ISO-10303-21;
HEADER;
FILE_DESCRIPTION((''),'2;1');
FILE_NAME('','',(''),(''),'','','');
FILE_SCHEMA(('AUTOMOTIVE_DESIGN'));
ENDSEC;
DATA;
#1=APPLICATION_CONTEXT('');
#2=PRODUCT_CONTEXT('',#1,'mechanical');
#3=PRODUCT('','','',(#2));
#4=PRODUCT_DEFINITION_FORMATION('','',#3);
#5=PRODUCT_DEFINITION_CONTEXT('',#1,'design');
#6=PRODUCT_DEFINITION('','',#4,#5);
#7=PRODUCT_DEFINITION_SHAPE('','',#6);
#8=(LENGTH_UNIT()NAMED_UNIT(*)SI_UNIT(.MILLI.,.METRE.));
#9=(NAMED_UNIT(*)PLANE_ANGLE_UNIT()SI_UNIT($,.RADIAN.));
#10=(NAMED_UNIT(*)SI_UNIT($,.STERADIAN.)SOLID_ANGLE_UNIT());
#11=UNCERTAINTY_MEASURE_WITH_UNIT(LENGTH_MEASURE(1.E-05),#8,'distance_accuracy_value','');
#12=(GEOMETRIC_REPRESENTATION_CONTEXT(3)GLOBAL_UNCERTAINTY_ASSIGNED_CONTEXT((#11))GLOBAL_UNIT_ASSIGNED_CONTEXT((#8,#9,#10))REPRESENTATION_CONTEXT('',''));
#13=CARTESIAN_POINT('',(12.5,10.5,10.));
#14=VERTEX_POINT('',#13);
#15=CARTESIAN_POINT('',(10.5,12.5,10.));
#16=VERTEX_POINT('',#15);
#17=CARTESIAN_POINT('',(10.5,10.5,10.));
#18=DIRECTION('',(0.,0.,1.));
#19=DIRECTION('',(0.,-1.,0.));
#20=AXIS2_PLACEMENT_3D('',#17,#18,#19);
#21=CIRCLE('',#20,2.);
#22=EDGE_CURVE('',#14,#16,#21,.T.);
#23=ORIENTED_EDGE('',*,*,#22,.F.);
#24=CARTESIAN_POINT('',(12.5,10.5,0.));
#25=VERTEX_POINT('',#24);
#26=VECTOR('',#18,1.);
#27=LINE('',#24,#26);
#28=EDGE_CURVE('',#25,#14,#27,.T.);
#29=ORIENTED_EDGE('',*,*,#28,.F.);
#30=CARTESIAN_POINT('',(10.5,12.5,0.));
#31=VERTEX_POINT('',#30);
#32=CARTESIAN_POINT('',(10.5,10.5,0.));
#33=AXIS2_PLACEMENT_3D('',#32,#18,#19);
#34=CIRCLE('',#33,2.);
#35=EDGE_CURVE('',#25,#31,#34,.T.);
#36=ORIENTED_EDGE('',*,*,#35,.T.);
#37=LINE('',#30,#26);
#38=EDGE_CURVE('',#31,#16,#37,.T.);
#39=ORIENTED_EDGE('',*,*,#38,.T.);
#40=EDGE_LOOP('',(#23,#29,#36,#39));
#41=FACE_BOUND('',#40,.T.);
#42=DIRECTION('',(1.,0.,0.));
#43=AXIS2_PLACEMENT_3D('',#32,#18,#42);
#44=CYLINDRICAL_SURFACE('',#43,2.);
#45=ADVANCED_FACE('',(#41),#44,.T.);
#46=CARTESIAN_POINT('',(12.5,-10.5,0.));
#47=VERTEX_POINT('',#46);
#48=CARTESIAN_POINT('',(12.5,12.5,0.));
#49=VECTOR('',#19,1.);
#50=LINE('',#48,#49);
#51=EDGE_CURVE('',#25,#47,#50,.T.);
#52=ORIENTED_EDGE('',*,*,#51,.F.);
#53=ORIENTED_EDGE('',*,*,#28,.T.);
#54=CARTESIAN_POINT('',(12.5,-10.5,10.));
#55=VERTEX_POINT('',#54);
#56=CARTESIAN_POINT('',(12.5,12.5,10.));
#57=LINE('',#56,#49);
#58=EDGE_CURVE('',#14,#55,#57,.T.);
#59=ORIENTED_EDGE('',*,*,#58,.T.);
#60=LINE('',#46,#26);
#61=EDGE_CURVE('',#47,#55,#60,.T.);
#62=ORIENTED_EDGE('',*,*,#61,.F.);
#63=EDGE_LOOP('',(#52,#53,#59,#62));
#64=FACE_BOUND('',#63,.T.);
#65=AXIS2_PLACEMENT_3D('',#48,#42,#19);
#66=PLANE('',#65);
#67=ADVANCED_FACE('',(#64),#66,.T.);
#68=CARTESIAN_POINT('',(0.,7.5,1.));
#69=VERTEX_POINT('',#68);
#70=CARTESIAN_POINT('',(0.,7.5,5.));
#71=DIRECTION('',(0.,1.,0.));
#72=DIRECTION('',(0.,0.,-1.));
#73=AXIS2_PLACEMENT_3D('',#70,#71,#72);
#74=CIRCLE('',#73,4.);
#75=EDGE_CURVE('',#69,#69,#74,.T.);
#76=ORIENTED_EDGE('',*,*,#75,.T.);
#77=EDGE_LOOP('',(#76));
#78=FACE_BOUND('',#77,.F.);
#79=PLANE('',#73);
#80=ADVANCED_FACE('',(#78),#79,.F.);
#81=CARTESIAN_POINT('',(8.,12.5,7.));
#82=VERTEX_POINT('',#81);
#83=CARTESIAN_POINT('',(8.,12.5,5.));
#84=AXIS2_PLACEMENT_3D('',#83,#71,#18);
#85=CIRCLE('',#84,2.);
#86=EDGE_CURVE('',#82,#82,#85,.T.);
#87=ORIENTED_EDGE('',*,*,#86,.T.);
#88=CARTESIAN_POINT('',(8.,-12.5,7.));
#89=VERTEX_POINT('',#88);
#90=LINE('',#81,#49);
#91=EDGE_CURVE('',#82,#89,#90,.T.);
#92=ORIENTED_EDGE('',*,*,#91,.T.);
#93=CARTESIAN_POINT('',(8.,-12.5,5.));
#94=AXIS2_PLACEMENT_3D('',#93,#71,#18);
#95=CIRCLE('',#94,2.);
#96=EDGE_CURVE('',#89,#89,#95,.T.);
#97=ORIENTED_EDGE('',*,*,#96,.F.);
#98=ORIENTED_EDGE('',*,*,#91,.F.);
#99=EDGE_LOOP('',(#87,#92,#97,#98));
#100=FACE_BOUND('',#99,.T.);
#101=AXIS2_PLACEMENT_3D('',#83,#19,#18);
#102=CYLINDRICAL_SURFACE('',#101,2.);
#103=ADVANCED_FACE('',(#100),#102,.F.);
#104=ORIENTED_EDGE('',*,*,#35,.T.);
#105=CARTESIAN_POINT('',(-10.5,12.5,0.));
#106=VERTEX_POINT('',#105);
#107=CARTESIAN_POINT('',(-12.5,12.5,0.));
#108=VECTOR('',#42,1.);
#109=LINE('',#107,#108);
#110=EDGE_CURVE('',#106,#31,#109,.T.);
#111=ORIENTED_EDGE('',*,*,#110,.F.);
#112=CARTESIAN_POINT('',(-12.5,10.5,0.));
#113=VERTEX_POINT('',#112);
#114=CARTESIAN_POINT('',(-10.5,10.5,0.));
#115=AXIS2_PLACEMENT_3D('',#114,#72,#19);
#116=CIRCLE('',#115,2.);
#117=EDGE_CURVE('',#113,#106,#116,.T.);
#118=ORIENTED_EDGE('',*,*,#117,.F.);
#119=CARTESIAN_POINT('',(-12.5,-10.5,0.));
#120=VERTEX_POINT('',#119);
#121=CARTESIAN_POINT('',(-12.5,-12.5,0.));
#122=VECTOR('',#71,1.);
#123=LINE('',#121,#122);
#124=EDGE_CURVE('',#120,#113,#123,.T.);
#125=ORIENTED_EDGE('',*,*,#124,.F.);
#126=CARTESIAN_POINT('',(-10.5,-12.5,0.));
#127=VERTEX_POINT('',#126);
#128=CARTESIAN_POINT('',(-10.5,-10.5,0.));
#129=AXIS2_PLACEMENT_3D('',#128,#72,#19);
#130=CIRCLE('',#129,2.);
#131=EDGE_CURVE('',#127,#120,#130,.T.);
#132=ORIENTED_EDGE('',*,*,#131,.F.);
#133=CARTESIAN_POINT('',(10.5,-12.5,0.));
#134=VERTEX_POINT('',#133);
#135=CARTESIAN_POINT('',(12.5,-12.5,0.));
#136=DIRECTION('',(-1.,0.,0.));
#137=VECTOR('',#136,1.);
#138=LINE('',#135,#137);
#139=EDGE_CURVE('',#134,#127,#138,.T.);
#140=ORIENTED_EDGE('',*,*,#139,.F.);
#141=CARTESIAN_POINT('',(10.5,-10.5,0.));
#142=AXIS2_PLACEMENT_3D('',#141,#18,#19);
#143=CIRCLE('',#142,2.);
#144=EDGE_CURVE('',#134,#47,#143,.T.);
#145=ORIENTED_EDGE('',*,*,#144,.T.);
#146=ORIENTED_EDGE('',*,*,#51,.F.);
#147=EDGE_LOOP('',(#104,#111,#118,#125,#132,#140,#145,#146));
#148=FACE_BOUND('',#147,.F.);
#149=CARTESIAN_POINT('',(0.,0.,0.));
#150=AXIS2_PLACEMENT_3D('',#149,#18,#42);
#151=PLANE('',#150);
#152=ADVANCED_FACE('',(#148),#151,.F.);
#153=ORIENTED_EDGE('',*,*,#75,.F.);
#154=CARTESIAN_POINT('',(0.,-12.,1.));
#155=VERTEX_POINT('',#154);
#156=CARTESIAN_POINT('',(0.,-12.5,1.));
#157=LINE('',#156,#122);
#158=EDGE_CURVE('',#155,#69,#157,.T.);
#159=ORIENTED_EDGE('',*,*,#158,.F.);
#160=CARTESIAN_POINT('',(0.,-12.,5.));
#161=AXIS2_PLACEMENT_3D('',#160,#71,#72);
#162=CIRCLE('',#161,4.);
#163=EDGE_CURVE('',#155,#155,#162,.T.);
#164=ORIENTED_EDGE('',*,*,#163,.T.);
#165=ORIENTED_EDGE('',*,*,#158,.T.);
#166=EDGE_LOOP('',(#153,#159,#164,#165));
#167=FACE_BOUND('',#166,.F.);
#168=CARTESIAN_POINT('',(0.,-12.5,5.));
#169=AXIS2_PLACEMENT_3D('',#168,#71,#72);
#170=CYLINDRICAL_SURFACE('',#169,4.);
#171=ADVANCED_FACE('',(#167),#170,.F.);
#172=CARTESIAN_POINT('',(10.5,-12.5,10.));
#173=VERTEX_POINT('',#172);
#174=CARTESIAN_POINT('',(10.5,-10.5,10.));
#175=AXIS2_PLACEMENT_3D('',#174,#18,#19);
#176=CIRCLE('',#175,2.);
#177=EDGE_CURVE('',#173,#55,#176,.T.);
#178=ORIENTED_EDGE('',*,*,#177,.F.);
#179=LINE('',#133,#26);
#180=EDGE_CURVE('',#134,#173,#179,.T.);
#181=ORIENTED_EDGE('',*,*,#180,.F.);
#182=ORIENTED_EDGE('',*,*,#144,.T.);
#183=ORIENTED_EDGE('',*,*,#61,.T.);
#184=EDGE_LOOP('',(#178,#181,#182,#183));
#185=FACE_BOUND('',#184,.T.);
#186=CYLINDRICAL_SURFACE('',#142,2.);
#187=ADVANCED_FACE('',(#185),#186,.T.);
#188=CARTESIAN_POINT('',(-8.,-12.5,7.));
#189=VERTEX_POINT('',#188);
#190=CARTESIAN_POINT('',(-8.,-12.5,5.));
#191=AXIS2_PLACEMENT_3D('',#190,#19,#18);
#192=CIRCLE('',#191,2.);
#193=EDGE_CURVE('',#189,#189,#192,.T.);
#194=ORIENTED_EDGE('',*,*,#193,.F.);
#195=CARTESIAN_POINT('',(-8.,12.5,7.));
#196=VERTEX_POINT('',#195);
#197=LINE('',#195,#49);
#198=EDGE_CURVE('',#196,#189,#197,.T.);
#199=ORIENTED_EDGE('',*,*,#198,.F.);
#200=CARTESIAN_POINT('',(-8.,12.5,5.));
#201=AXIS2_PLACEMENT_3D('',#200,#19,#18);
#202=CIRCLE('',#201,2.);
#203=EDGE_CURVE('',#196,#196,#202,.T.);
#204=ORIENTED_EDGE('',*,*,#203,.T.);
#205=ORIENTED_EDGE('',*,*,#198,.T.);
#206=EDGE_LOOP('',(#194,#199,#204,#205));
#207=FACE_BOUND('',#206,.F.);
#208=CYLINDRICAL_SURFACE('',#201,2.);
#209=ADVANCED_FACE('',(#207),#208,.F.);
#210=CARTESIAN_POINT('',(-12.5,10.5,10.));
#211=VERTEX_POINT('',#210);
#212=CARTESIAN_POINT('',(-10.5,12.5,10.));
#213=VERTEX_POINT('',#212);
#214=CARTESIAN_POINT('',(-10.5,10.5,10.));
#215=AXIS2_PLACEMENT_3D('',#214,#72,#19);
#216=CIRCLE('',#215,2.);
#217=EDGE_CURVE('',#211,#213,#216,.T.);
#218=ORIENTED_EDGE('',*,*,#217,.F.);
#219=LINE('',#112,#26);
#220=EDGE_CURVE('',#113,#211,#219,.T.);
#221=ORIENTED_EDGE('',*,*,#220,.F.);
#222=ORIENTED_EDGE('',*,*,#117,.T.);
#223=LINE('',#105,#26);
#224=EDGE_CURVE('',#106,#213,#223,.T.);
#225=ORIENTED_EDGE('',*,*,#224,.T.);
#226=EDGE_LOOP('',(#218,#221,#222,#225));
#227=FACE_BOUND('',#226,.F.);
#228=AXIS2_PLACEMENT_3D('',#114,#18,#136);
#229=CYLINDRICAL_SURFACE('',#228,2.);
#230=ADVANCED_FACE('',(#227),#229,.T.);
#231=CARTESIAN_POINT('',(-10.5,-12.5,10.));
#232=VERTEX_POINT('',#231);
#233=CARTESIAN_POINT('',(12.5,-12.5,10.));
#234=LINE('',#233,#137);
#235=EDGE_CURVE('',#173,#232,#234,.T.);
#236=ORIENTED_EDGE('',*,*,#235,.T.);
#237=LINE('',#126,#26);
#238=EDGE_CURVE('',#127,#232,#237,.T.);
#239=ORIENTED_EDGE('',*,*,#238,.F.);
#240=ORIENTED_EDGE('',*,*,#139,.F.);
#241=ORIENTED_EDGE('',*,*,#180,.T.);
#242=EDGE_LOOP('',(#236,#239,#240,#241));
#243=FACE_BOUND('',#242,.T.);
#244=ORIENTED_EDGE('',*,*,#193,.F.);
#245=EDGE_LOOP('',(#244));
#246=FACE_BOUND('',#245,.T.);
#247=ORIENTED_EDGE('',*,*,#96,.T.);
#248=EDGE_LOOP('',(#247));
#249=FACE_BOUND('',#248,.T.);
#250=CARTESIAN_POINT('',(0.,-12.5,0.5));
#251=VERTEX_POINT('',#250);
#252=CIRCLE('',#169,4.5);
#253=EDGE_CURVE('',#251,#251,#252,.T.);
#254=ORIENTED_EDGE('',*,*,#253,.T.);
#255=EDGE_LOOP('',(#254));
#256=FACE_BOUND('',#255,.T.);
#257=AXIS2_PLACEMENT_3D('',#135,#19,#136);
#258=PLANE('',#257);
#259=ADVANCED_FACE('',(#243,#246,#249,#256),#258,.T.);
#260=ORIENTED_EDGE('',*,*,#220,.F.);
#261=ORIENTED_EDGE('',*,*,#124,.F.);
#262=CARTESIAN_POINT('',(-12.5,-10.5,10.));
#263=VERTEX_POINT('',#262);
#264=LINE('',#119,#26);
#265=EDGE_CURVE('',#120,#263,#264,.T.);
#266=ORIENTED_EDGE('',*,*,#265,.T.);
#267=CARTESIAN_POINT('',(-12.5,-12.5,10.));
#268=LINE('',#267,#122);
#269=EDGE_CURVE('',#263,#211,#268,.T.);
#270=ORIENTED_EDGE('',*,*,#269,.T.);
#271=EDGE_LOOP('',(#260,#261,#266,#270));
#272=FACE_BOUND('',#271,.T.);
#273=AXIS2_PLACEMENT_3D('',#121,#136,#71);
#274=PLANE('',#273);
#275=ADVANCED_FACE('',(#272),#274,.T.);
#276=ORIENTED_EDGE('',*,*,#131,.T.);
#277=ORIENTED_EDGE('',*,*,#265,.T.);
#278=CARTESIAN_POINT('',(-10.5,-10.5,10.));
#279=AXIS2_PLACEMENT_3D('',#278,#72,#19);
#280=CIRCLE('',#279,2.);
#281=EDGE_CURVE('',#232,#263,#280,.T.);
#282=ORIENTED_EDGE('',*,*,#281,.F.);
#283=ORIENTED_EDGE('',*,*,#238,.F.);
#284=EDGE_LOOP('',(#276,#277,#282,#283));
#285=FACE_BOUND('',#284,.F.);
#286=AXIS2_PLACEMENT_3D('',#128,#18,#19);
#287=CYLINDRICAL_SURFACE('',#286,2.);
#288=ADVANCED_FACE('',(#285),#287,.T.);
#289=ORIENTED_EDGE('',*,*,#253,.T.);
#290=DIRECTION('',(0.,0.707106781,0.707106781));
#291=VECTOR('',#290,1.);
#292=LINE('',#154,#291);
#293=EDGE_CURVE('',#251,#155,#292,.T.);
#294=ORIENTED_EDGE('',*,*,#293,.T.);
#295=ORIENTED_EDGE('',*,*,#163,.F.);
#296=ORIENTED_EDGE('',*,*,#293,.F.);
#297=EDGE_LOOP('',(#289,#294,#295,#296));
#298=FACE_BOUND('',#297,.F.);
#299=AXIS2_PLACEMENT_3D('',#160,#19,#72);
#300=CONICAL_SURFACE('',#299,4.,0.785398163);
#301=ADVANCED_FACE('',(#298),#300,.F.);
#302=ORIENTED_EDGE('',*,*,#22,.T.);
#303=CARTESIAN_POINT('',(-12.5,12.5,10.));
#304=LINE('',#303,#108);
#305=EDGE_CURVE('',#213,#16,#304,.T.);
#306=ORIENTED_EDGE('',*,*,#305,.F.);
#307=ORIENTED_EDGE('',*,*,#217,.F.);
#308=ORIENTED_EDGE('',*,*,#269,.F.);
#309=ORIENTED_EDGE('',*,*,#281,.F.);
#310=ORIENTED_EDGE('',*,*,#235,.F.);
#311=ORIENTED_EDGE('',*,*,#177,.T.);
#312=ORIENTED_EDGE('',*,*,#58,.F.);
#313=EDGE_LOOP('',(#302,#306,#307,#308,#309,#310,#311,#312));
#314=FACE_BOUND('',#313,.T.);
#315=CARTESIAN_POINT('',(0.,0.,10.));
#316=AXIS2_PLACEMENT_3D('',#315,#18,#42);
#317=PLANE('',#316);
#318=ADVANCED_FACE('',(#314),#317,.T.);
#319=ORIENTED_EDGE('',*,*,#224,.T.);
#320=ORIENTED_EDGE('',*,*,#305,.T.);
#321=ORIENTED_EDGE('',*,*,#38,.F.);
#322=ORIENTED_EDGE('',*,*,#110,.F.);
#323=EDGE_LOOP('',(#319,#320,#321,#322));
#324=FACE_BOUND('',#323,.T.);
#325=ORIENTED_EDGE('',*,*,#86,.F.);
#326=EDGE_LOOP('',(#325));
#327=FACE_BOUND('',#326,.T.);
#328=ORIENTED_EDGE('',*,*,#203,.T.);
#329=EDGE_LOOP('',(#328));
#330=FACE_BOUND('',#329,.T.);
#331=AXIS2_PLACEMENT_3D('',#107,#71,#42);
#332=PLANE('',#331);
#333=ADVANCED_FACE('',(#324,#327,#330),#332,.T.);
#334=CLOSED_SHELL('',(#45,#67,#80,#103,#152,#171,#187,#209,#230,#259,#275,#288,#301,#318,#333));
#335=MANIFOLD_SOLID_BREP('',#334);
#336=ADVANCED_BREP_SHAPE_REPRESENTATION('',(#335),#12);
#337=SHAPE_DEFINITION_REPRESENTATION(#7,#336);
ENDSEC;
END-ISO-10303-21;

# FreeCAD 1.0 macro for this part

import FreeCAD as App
import Part
import Sketcher

V = App.Vector


def edges_at(feature, points):
    """Names of the edges that pass closest to the given points."""
    edges = feature.Shape.Edges
    near = lambda p: min(range(len(edges)), key=lambda i: edges[i].distToShape(Part.Vertex(*p))[0])
    return sorted({f"Edge{near(p) + 1}" for p in points})

doc = App.newDocument("Part")
body = doc.addObject("PartDesign::Body", "Body")

sketch1 = body.newObject("Sketcher::SketchObject", "Sketch")
sketch1.AttachmentSupport = (doc.getObject("XY_Plane"), [""])
sketch1.MapMode = "FlatFace"
sketch1.addGeometry([
    Part.LineSegment(V(12, 12, 0), V(-12, 12, 0)),
    Part.LineSegment(V(-12, 12, 0), V(-12, -12, 0)),
    Part.LineSegment(V(-12, -12, 0), V(12, -12, 0)),
    Part.LineSegment(V(12, -12, 0), V(12, 12, 0)),
], False)
sketch1.addConstraint([
    Sketcher.Constraint("Coincident", 0, 2, 1, 1),
    Sketcher.Constraint("Coincident", 1, 2, 2, 1),
    Sketcher.Constraint("Coincident", 2, 2, 3, 1),
    Sketcher.Constraint("Coincident", 3, 2, 0, 1),
    Sketcher.Constraint("Horizontal", 0),
    Sketcher.Constraint("Vertical", 1),
    Sketcher.Constraint("Horizontal", 2),
    Sketcher.Constraint("Vertical", 3),
    Sketcher.Constraint("Symmetric", 0, 2, 2, 2, -1, 1),
    Sketcher.Constraint("Equal", 2, 1),
    Sketcher.Constraint("DistanceX", 0, 2, 0, 1, 25.0),
])
pad1 = body.newObject("PartDesign::Pad", "Pad")
pad1.Profile = sketch1
pad1.Length = 10

sketch2 = body.newObject("Sketcher::SketchObject", "Sketch001")
sketch2.AttachmentSupport = (doc.getObject("XZ_Plane"), [""])
sketch2.MapMode = "FlatFace"
sketch2.AttachmentOffset = App.Placement(V(0, 0, -12.5), App.Rotation())
sketch2.addGeometry(Part.Circle(V(-8, 5, 0), V(0, 0, 1), 2), False)
sketch2.addConstraint([
    Sketcher.Constraint("Diameter", 0, 4.0),
    Sketcher.Constraint("DistanceX", 0, 3, -1, 1, 8.0),
    Sketcher.Constraint("DistanceY", -1, 1, 0, 3, 5.0),
])
doc.recompute()
hole = body.newObject("PartDesign::Hole", "Hole")
hole.Profile = sketch2
hole.ThreadType = "None"
hole.Diameter = 4
hole.DepthType = "Dimension"
hole.Depth = 25
hole.DrillPoint = "Flat"
hole.Reversed = True
doc.recompute()

mirrored = body.newObject("PartDesign::Mirrored", "Mirrored")
mirrored.Originals = [hole]
mirrored.MirrorPlane = (doc.getObject("YZ_Plane"), [""])
body.Tip = mirrored

sketch3 = body.newObject("Sketcher::SketchObject", "Sketch002")
sketch3.AttachmentSupport = (doc.getObject("XZ_Plane"), [""])
sketch3.MapMode = "FlatFace"
sketch3.AttachmentOffset = App.Placement(V(0, 0, 12.5), App.Rotation())
sketch3.addGeometry(Part.Circle(V(0, 5, 0), V(0, 0, 1), 4), False)
sketch3.addConstraint([
    Sketcher.Constraint("PointOnObject", 0, 3, -2),
    Sketcher.Constraint("Diameter", 0, 8.0),
    Sketcher.Constraint("DistanceY", -1, 1, 0, 3, 5.0),
])
doc.recompute()
hole2 = body.newObject("PartDesign::Hole", "Hole001")
hole2.Profile = sketch3
hole2.ThreadType = "None"
hole2.Diameter = 8
hole2.DepthType = "Dimension"
hole2.Depth = 20
hole2.DrillPoint = "Flat"
doc.recompute()

chamfer = body.newObject("PartDesign::Chamfer", "Chamfer")
chamfer.Base = (hole2, edges_at(hole2, [(0, -12.5, 9)]))
chamfer.Size = 0.5
doc.recompute()

fillet = body.newObject("PartDesign::Fillet", "Fillet")
fillet.Base = (chamfer, edges_at(chamfer, [
    (-12.5, -12.5, 5),
    (-12.5, 12.5, 5),
    (12.5, 12.5, 5),
    (12.5, -12.5, 5),
]))
fillet.Radius = 2

doc.recompute()
